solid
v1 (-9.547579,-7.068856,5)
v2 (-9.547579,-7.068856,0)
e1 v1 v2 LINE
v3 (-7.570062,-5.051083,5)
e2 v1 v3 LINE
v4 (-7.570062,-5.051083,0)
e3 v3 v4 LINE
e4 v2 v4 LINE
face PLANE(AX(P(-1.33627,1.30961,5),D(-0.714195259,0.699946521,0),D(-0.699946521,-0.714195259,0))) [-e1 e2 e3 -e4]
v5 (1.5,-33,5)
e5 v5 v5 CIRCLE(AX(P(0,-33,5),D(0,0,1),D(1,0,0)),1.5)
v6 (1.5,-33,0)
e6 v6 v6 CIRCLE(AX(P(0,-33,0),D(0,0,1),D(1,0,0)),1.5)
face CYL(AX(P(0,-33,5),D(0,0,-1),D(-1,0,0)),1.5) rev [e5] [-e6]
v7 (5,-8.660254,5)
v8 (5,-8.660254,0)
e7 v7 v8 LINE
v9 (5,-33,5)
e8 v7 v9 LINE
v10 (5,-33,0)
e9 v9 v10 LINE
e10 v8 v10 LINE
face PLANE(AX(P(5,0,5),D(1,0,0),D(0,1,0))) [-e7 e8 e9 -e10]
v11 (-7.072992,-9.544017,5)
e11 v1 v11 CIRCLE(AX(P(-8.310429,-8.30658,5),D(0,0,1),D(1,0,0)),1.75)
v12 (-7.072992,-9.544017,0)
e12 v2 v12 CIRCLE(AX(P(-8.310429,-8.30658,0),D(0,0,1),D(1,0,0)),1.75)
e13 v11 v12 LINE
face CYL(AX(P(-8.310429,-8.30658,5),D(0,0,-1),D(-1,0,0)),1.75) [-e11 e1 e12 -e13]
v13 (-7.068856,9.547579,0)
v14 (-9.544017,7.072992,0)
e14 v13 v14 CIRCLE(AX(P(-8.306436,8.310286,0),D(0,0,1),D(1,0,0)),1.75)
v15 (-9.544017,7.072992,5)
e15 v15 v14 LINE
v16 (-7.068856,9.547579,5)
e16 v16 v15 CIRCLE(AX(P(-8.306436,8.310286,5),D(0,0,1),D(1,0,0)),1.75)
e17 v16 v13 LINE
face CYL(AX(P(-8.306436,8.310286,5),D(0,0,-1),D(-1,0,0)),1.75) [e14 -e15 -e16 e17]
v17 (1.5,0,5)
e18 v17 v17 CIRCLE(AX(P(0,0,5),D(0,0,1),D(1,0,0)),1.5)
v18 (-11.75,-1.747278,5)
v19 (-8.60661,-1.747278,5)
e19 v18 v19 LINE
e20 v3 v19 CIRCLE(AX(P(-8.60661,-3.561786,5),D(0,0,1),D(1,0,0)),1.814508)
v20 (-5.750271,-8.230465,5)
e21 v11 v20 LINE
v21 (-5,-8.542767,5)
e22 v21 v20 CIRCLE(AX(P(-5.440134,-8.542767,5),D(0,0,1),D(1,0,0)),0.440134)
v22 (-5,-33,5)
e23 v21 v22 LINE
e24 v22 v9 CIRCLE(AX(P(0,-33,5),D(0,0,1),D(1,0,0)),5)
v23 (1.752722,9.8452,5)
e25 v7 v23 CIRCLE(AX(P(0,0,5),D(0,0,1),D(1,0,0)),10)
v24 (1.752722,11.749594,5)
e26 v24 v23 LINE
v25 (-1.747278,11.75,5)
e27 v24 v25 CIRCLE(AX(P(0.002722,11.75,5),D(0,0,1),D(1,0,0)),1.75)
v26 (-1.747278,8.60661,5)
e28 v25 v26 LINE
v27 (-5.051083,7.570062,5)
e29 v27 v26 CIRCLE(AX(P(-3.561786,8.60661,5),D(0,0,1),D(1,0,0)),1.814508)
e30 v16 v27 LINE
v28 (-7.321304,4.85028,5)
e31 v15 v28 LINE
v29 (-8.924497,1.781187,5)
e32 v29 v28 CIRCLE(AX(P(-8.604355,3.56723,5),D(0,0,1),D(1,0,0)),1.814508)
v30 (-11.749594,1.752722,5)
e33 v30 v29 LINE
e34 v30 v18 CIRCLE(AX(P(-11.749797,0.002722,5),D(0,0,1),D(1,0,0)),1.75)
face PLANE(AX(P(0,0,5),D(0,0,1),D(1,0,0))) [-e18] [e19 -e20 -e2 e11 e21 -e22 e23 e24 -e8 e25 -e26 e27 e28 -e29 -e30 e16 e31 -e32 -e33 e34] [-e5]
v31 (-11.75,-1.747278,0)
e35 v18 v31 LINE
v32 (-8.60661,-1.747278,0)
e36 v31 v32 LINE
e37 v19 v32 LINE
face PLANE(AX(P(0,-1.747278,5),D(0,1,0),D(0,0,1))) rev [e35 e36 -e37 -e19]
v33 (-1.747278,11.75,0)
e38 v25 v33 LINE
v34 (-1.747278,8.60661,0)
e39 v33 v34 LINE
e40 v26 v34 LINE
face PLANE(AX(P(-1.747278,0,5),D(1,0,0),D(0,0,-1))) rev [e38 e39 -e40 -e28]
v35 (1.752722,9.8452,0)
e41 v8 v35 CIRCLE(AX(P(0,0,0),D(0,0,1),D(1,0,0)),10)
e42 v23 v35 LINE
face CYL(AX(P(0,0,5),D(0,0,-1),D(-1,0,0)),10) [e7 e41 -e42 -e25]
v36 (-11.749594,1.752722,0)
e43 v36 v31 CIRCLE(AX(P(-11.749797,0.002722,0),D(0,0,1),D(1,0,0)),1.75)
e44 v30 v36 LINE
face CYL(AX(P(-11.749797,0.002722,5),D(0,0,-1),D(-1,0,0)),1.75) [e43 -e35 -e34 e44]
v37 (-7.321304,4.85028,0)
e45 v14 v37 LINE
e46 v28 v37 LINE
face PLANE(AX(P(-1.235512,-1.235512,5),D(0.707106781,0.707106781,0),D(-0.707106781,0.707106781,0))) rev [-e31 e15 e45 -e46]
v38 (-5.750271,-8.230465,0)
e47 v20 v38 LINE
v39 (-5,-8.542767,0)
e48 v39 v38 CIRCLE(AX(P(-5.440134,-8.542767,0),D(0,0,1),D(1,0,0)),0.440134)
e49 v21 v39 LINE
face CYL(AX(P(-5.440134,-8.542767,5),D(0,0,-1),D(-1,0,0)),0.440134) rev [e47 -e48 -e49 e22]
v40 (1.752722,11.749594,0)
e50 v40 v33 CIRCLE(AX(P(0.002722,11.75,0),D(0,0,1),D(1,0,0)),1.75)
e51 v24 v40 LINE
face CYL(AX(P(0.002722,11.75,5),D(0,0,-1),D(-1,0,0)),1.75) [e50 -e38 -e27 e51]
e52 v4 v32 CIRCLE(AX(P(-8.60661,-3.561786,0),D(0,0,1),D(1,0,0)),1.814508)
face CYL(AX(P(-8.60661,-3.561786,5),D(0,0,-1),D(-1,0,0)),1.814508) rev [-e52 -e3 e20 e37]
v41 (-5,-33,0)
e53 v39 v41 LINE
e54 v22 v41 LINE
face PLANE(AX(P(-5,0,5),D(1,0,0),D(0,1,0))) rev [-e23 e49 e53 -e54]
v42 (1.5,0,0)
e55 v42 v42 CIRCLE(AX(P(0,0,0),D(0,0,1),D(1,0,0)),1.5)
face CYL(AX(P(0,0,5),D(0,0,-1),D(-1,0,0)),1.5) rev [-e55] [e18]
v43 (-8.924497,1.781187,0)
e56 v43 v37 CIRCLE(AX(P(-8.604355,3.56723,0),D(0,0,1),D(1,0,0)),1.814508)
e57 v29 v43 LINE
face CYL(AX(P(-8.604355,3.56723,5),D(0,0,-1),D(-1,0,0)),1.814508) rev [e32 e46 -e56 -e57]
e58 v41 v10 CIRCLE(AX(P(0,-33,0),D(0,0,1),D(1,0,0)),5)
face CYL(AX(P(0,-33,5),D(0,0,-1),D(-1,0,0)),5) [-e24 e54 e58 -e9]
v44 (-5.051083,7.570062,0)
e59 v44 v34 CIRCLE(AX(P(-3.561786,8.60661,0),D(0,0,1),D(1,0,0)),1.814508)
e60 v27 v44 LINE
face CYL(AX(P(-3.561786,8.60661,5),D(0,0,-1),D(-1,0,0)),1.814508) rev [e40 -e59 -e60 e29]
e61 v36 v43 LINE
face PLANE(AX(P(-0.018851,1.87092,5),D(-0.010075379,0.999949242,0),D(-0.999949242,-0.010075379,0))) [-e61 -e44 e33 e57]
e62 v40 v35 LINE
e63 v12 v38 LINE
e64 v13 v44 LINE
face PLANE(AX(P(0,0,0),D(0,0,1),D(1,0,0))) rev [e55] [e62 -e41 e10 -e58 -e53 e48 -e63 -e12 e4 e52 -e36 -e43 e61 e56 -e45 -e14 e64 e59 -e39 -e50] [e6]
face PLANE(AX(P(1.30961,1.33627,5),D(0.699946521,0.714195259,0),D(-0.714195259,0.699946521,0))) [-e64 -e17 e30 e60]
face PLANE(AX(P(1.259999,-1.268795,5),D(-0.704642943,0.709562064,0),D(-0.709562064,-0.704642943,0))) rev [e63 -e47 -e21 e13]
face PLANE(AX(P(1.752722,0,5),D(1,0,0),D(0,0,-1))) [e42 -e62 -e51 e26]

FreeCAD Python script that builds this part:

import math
import FreeCAD as App
import Part
import Sketcher
Q = App.Units.Quantity

doc = App.newDocument("Part")
body = doc.addObject("PartDesign::Body", "Body")

sketch1 = body.newObject("Sketcher::SketchObject", "Sketch")
sketch1.AttachmentSupport = (doc.getObject("XY_Plane"), [""])
sketch1.MapMode = "FlatFace"
sketch1.addGeometry([
    Part.LineSegment(App.Vector(5, -33, 0), App.Vector(5, -8.660254, 0)),
    Part.ArcOfCircle(Part.Circle(App.Vector(0, 0, 0), App.Vector(0, 0, 1), 10), math.radians(-60), math.radians(79.905501)),
    Part.LineSegment(App.Vector(1.752722, 9.8452, 0), App.Vector(1.752722, 11.749594, 0)),
    Part.ArcOfCircle(Part.Circle(App.Vector(0.002722, 11.75, 0), App.Vector(0, 0, 1), 1.75), math.radians(-0.013273), math.radians(180)),
    Part.LineSegment(App.Vector(-1.747278, 11.75, 0), App.Vector(-1.747278, 8.60661, 0)),
    Part.ArcOfCircle(Part.Circle(App.Vector(-3.561786, 8.60661, 0), App.Vector(0, 0, 1), 1.814508), math.radians(-145.16216), math.radians(0)),
    Part.LineSegment(App.Vector(-5.051083, 7.570062, 0), App.Vector(-7.068856, 9.547579, 0)),
    Part.ArcOfCircle(Part.Circle(App.Vector(-8.306436, 8.310286, 0), App.Vector(0, 0, 1), 1.75), math.radians(44.993363), math.radians(224.993363)),
    Part.LineSegment(App.Vector(-9.544017, 7.072992, 0), App.Vector(-7.321304, 4.85028, 0)),
    Part.ArcOfCircle(Part.Circle(App.Vector(-8.604355, 3.56723, 0), App.Vector(0, 0, 1), 1.814508), math.radians(-100.16216), math.radians(45)),
    Part.LineSegment(App.Vector(-8.924497, 1.781187, 0), App.Vector(-11.749594, 1.752722, 0)),
    Part.ArcOfCircle(Part.Circle(App.Vector(-11.749797, 0.002722, 0), App.Vector(0, 0, 1), 1.75), math.radians(89.993363), math.radians(269.993363)),
    Part.LineSegment(App.Vector(-11.75, -1.747278, 0), App.Vector(-8.60661, -1.747278, 0)),
    Part.ArcOfCircle(Part.Circle(App.Vector(-8.60661, -3.561786, 0), App.Vector(0, 0, 1), 1.814508), math.radians(-55.16216), math.radians(90)),
    Part.LineSegment(App.Vector(-7.570062, -5.051083, 0), App.Vector(-9.547579, -7.068856, 0)),
    Part.ArcOfCircle(Part.Circle(App.Vector(-8.310429, -8.30658, 0), App.Vector(0, 0, 1), 1.75), math.radians(134.986727), math.radians(315)),
    Part.LineSegment(App.Vector(-7.072992, -9.544017, 0), App.Vector(-5.750271, -8.230465, 0)),
    Part.ArcOfCircle(Part.Circle(App.Vector(-5.440134, -8.542767, 0), App.Vector(0, 0, 1), 0.440134), math.radians(0), math.radians(134.800705)),
    Part.LineSegment(App.Vector(-5, -8.542767, 0), App.Vector(-5, -33, 0)),
    Part.ArcOfCircle(Part.Circle(App.Vector(0, -33, 0), App.Vector(0, 0, 1), 5), math.radians(180), math.radians(360)),
    Part.Circle(App.Vector(0, -33, 0), App.Vector(0, 0, 1), 1.5),
    Part.Circle(App.Vector(0, 0, 0), App.Vector(0, 0, 1), 1.5),
], False)
sketch1.addConstraint([
    Sketcher.Constraint("Coincident", 0, 2, 1, 1),
    Sketcher.Constraint("Coincident", 1, 2, 2, 1),
    Sketcher.Constraint("Coincident", 2, 2, 3, 1),
    Sketcher.Constraint("Tangent", 3, 2, 4, 1),
    Sketcher.Constraint("Tangent", 4, 2, 5, 2),
    Sketcher.Constraint("Coincident", 5, 1, 6, 1),
    Sketcher.Constraint("Coincident", 6, 2, 7, 1),
    Sketcher.Constraint("Coincident", 7, 2, 8, 1),
    Sketcher.Constraint("Tangent", 8, 2, 9, 2),
    Sketcher.Constraint("Coincident", 9, 1, 10, 1),
    Sketcher.Constraint("Coincident", 10, 2, 11, 1),
    Sketcher.Constraint("Coincident", 11, 2, 12, 1),
    Sketcher.Constraint("Tangent", 12, 2, 13, 2),
    Sketcher.Constraint("Coincident", 13, 1, 14, 1),
    Sketcher.Constraint("Coincident", 14, 2, 15, 1),
    Sketcher.Constraint("Coincident", 15, 2, 16, 1),
    Sketcher.Constraint("Tangent", 16, 2, 17, 2),
    Sketcher.Constraint("Tangent", 17, 1, 18, 1),
    Sketcher.Constraint("Tangent", 18, 2, 19, 1),
    Sketcher.Constraint("Tangent", 19, 2, 0, 1),
    Sketcher.Constraint("Vertical", 0),
    Sketcher.Constraint("Vertical", 2),
    Sketcher.Constraint("Vertical", 4),
    Sketcher.Constraint("Horizontal", 12),
    Sketcher.Constraint("Vertical", 18),
    Sketcher.Constraint("Coincident", 1, 3, -1, 1),
    Sketcher.Constraint("Coincident", 21, 3, -1, 1),
    Sketcher.Constraint("Coincident", 20, 3, 19, 3),
    Sketcher.Constraint("Equal", 3, 7),
    Sketcher.Constraint("Equal", 5, 9),
    Sketcher.Constraint("Equal", 7, 11),
    Sketcher.Constraint("Equal", 9, 13),
    Sketcher.Constraint("Equal", 11, 15),
    Sketcher.Constraint("Equal", 20, 21),
    Sketcher.Constraint("PointOnObject", 19, 3, -2),
    Sketcher.Constraint("Perpendicular", 6, 14),
    Sketcher.Constraint("Equal", 12, 4),
    Sketcher.Constraint("Equal", 6, 10),
    Sketcher.Constraint("Equal", 10, 14),
    Sketcher.Constraint("Diameter", 20, 3.0),
    Sketcher.Constraint("Radius", 1, 10.0),
    Sketcher.Constraint("Radius", 19, 5.0),
    Sketcher.Constraint("Angle", 8, Q("-45 deg")),
    Sketcher.Constraint("Radius", 3, 1.75),
    Sketcher.Constraint("DistanceY", 19, 3, -1, 1, 33.0),
    Sketcher.Constraint("DistanceY", -1, 1, 3, 3, 11.75),
    Sketcher.Constraint("DistanceX", 11, 2, -1, 1, 11.75),
    Sketcher.Constraint("Radius", 5, 1.814508),
    Sketcher.Constraint("Radius", 17, 0.440134),
    Sketcher.Constraint("DistanceX", 12, 1, 12, 2, 3.14339),
    Sketcher.Constraint("DistanceY", -1, 1, 1, 2, 9.8452),
    Sketcher.Constraint("DistanceY", 15, 3, 11, 3, 8.309302),
    Sketcher.Constraint("DistanceY", 8, 2, 6, 2, 4.697299),
    Sketcher.Constraint("DistanceX", 11, 3, 9, 1, 2.8253),
    Sketcher.Constraint("Distance", 6, 2.825241),
    Sketcher.Constraint("Distance", 8, 3.14339),
    Sketcher.Constraint("Distance", 16, 1.864138),
    Sketcher.Constraint("DistanceY", 2, 1, 2, 2, 1.904394),
    Sketcher.Constraint("DistanceY", 18, 2, 18, 1, 24.457233),
    Sketcher.Constraint("DistanceY", -1, 1, 9, 3, 3.56723),
    Sketcher.Constraint("DistanceX", 15, 3, -1, 1, 8.310429),
    Sketcher.Constraint("DistanceY", 15, 3, -1, 1, 8.30658),
    Sketcher.Constraint("DistanceX", 14, 2, -1, 1, 9.547579),
    Sketcher.Constraint("DistanceX", 7, 3, 5, 3, 4.744651),
    Sketcher.Constraint("DistanceX", 11, 3, 7, 3, 3.443361),
])
pad1 = body.newObject("PartDesign::Pad", "Pad")
pad1.Profile = sketch1
pad1.Length = 5

doc.recompute()
